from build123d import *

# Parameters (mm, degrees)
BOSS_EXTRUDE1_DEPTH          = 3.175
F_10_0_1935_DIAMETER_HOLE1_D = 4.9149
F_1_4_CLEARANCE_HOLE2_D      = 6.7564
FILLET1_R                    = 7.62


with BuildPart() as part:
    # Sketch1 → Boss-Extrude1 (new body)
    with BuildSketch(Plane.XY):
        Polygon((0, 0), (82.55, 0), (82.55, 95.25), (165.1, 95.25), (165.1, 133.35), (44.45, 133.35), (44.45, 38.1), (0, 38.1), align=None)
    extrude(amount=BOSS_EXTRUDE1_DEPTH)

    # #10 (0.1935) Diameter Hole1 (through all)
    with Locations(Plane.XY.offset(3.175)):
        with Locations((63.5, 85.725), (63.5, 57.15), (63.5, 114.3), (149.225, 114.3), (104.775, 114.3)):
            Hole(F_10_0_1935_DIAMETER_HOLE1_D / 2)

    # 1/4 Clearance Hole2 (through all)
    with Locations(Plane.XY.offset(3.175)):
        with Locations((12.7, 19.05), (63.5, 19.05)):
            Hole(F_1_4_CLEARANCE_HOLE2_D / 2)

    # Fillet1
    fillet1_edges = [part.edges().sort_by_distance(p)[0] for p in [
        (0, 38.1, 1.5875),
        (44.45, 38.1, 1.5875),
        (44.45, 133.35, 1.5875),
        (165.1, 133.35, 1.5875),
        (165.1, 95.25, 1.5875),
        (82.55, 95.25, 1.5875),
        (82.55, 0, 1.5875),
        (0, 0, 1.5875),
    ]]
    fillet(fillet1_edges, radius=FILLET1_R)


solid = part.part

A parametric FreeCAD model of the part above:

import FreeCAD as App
import Part
import Sketcher

V = App.Vector
Q = App.Units.Quantity


def edges_at(feature, points):
    """Names of the edges that pass closest to the given points."""
    edges = feature.Shape.Edges
    near = lambda p: min(range(len(edges)), key=lambda i: edges[i].distToShape(Part.Vertex(*p))[0])
    return sorted({f"Edge{near(p) + 1}" for p in points})


def add_polygon(sketch, points):
    """Adds a closed chain of lines whose ends are joined by coincident constraints."""
    first, n = sketch.GeometryCount, len(points)
    for a, b in zip(points, points[1:] + points[:1]):
        sketch.addGeometry(Part.LineSegment(App.Vector(*a, 0), App.Vector(*b, 0)), False)
    for i in range(n):
        sketch.addConstraint(Sketcher.Constraint("Coincident", first + i, 2, first + (i + 1) % n, 1))

doc = App.newDocument("Part")
params = doc.addObject("Spreadsheet::Sheet", "Params")
for row, (alias, value) in enumerate([
    ("sketch1_height", "1.5 in"),
    ("sketch1_width", "3.25 in"),
    ("sketch1_width2", "4.75 in"),
    ("sketch1_height2", "3.75 in"),
    ("pad1_length", "0.125 in"),
    ("hole_diameter", "0.1935 in"),
    ("sketch3_diameter", "0.266 in"),
    ("hole2_diameter", "0.266 in"),
    ("fillet_radius", "0.3 in"),
], start=1):
    params.set(f"A{row}", alias)
    params.set(f"B{row}", "=" + value)
    params.setAlias(f"B{row}", alias)

body = doc.addObject("PartDesign::Body", "Body")

# Sketch on XY plane
sketch1 = body.newObject("Sketcher::SketchObject", "Sketch")
sketch1.AttachmentSupport = (doc.getObject("XY_Plane"), [""])
sketch1.MapMode = "FlatFace"
add_polygon(sketch1, [(0, 0), (83, 0), (83, 95), (165, 95), (165, 133), (44, 133), (44, 38), (0, 38)])  # lines 0-7
sketch1.addConstraint(Sketcher.Constraint("Horizontal", 0))
sketch1.addConstraint(Sketcher.Constraint("Vertical", 1))
sketch1.addConstraint(Sketcher.Constraint("Horizontal", 2))
sketch1.addConstraint(Sketcher.Constraint("Vertical", 3))
sketch1.addConstraint(Sketcher.Constraint("Horizontal", 4))
sketch1.addConstraint(Sketcher.Constraint("Vertical", 5))
sketch1.addConstraint(Sketcher.Constraint("Horizontal", 6))
sketch1.addConstraint(Sketcher.Constraint("Vertical", 7))
sketch1.addConstraint(Sketcher.Constraint("Coincident", 7, 2, -1, 1))
sketch1.addConstraint(Sketcher.Constraint("Equal", 0, 2))
sketch1.addConstraint(Sketcher.Constraint("Equal", 1, 5))
sketch1.addConstraint(Sketcher.Constraint("DistanceY", 3, 1, 3, 2, Q("1.5 in")))
sketch1.addConstraint(Sketcher.Constraint("DistanceX", 0, 1, 0, 2, Q("3.25 in")))
sketch1.addConstraint(Sketcher.Constraint("DistanceX", 4, 2, 4, 1, Q("4.75 in")))
sketch1.addConstraint(Sketcher.Constraint("DistanceY", 1, 1, 1, 2, Q("3.75 in")))
sketch1.setExpression("Constraints[19]", "Params.sketch1_height")
sketch1.setExpression("Constraints[20]", "Params.sketch1_width")
sketch1.setExpression("Constraints[21]", "Params.sketch1_width2")
sketch1.setExpression("Constraints[22]", "Params.sketch1_height2")
pad1 = body.newObject("PartDesign::Pad", "Pad")
pad1.Profile = sketch1
pad1.setExpression("Length", "Params.pad1_length")

# Sketch on XY plane
sketch2 = body.newObject("Sketcher::SketchObject", "Sketch001")
sketch2.AttachmentSupport = (doc.getObject("XY_Plane"), [""])
sketch2.MapMode = "FlatFace"
sketch2.AttachmentOffset = App.Placement(V(0, 0, 0.125 * 25.4), App.Rotation())
sketch2.addGeometry(Part.Circle(V(63.5, 85.7, 0), V(0, 0, 1), 2.5), False)
sketch2.addGeometry(Part.Circle(V(63.5, 57.1, 0), V(0, 0, 1), 2.5), False)
sketch2.addGeometry(Part.Circle(V(63.5, 114.3, 0), V(0, 0, 1), 2.5), False)
sketch2.addGeometry(Part.Circle(V(149.2, 114.3, 0), V(0, 0, 1), 2.5), False)
sketch2.addGeometry(Part.Circle(V(104.8, 114.3, 0), V(0, 0, 1), 2.5), False)
sketch2.addConstraint(Sketcher.Constraint("Equal", 0, 1))
sketch2.addConstraint(Sketcher.Constraint("Equal", 1, 2))
sketch2.addConstraint(Sketcher.Constraint("Equal", 2, 3))
sketch2.addConstraint(Sketcher.Constraint("Equal", 3, 4))
sketch2.addConstraint(Sketcher.Constraint("Horizontal", 2, 3, 3, 3))
sketch2.addConstraint(Sketcher.Constraint("Horizontal", 3, 3, 4, 3))
sketch2.addConstraint(Sketcher.Constraint("Vertical", 0, 3, 1, 3))
sketch2.addConstraint(Sketcher.Constraint("Vertical", 1, 3, 2, 3))
sketch2.addConstraint(Sketcher.Constraint("Diameter", 0, Q("0.1935 in")))
sketch2.addConstraint(Sketcher.Constraint("DistanceX", -1, 1, 0, 3, Q("2.5 in")))
sketch2.addConstraint(Sketcher.Constraint("DistanceY", -1, 1, 2, 3, Q("4.5 in")))
sketch2.addConstraint(Sketcher.Constraint("DistanceY", -1, 1, 1, 3, Q("2.25 in")))
sketch2.addConstraint(Sketcher.Constraint("DistanceX", 4, 3, 3, 3, Q("1.75 in")))
sketch2.addConstraint(Sketcher.Constraint("DistanceY", -1, 1, 0, 3, Q("3.375 in")))
sketch2.addConstraint(Sketcher.Constraint("DistanceX", -1, 1, 3, 3, Q("5.875 in")))
doc.recompute()
hole = body.newObject("PartDesign::Hole", "Hole")
hole.Profile = sketch2
hole.ThreadType = "None"
hole.setExpression("Diameter", "Params.hole_diameter")
hole.DepthType = "ThroughAll"

# Sketch on XY plane
sketch3 = body.newObject("Sketcher::SketchObject", "Sketch002")
sketch3.AttachmentSupport = (doc.getObject("XY_Plane"), [""])
sketch3.MapMode = "FlatFace"
sketch3.AttachmentOffset = App.Placement(V(0, 0, 0.125 * 25.4), App.Rotation())
sketch3.addGeometry(Part.Circle(V(12.7, 19.1, 0), V(0, 0, 1), 3.4), False)
sketch3.addGeometry(Part.Circle(V(63.5, 19.1, 0), V(0, 0, 1), 3.4), False)
sketch3.addConstraint(Sketcher.Constraint("Equal", 0, 1))
sketch3.addConstraint(Sketcher.Constraint("Horizontal", 0, 3, 1, 3))
sketch3.addConstraint(Sketcher.Constraint("Diameter", 0, Q("0.266 in")))
sketch3.addConstraint(Sketcher.Constraint("DistanceX", 0, 3, 1, 3, Q("2 in")))
sketch3.addConstraint(Sketcher.Constraint("DistanceX", -1, 1, 0, 3, Q("0.5 in")))
sketch3.addConstraint(Sketcher.Constraint("DistanceY", -1, 1, 0, 3, Q("0.75 in")))
sketch3.setExpression("Constraints[2]", "Params.sketch3_diameter")
doc.recompute()
hole2 = body.newObject("PartDesign::Hole", "Hole001")
hole2.Profile = sketch3
hole2.ThreadType = "None"
hole2.setExpression("Diameter", "Params.hole2_diameter")
hole2.DepthType = "ThroughAll"
doc.recompute()

fillet = body.newObject("PartDesign::Fillet", "Fillet")
fillet.Base = (hole2, edges_at(hole2, [
    (0, 38.1, 1.587),
    (44.45, 38.1, 1.587),
    (44.45, 133.35, 1.587),
    (165.1, 133.35, 1.587),
    (165.1, 95.25, 1.587),
    (82.55, 95.25, 1.587),
    (82.55, 0, 1.587),
    (0, 0, 1.587),
]))
fillet.setExpression("Radius", "Params.fillet_radius")

doc.recompute()
